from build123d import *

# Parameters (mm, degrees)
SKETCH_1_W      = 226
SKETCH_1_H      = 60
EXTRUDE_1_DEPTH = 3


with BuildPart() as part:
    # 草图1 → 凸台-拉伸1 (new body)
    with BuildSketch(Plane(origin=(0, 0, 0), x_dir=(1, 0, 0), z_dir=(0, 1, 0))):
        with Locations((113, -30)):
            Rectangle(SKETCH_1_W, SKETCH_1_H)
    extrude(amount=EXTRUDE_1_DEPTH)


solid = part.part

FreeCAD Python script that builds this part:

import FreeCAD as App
import Part
import Sketcher


def add_polygon(sketch, points):
    """Adds a closed chain of lines whose ends are joined by coincident constraints."""
    first, n = sketch.GeometryCount, len(points)
    for a, b in zip(points, points[1:] + points[:1]):
        sketch.addGeometry(Part.LineSegment(App.Vector(*a, 0), App.Vector(*b, 0)), False)
    for i in range(n):
        sketch.addConstraint(Sketcher.Constraint("Coincident", first + i, 2, first + (i + 1) % n, 1))

doc = App.newDocument("Part")
body = doc.addObject("PartDesign::Body", "Body")

sketch1 = body.newObject("Sketcher::SketchObject", "Sketch")
sketch1.AttachmentSupport = (doc.getObject("XZ_Plane"), [""])
sketch1.MapMode = "FlatFace"
add_polygon(sketch1, [(0, 0), (0, 60), (226, 60), (226, 0)])
sketch1.addConstraint(Sketcher.Constraint("Vertical", 0))
sketch1.addConstraint(Sketcher.Constraint("Horizontal", 1))
sketch1.addConstraint(Sketcher.Constraint("Vertical", 2))
sketch1.addConstraint(Sketcher.Constraint("Horizontal", 3))
sketch1.addConstraint(Sketcher.Constraint("Coincident", 3, 2, -1, 1))
sketch1.addConstraint(Sketcher.Constraint("DistanceX", 1, 1, 1, 2, 226.0))
sketch1.addConstraint(Sketcher.Constraint("DistanceY", 0, 1, 0, 2, 60.0))
pad1 = body.newObject("PartDesign::Pad", "Pad")
pad1.Profile = sketch1
pad1.Length = 3
pad1.Reversed = True

doc.recompute()
